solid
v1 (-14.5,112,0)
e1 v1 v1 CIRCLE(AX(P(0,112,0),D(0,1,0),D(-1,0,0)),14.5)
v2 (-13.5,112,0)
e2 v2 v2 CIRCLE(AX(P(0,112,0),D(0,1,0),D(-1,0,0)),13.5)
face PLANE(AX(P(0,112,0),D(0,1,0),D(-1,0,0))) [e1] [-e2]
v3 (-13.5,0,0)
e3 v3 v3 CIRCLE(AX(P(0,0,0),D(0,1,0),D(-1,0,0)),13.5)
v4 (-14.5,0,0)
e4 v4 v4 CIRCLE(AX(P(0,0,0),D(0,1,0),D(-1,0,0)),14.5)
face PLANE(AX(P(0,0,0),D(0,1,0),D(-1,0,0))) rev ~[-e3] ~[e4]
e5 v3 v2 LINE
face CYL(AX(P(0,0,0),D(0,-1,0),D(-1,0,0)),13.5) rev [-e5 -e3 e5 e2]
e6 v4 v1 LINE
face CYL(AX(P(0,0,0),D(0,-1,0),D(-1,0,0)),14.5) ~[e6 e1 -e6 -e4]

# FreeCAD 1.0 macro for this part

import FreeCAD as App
import Part
import Sketcher

doc = App.newDocument("Part")
params = doc.addObject("Spreadsheet::Sheet", "Params")
for row, (alias, value) in enumerate([
    ("sketch1_diameter", "29 mm"),
    ("sketch1_diameter2", "27 mm"),
    ("pad1_length", "112 mm"),
], start=1):
    params.set(f"A{row}", alias)
    params.set(f"B{row}", "=" + value)
    params.setAlias(f"B{row}", alias)

body = doc.addObject("PartDesign::Body", "Body")

sketch1 = body.newObject("Sketcher::SketchObject", "Sketch")
sketch1.AttachmentSupport = (doc.getObject("XZ_Plane"), [""])
sketch1.MapMode = "FlatFace"
sketch1.addGeometry([
    Part.Circle(App.Vector(0, 0, 0), App.Vector(0, 0, 1), 14),
    Part.Circle(App.Vector(0, 0, 0), App.Vector(0, 0, 1), 14),
], False)
sketch1.addConstraint([
    Sketcher.Constraint("Coincident", 0, 3, -1, 1),
    Sketcher.Constraint("Coincident", 1, 3, -1, 1),
    Sketcher.Constraint("Diameter", 0, 29.0),
    Sketcher.Constraint("Diameter", 1, 27.0),
])
sketch1.setExpression("Constraints[2]", "Params.sketch1_diameter")
sketch1.setExpression("Constraints[3]", "Params.sketch1_diameter2")
pad1 = body.newObject("PartDesign::Pad", "Pad")
pad1.Profile = sketch1
pad1.setExpression("Length", "Params.pad1_length")
pad1.Reversed = True

doc.recompute()
